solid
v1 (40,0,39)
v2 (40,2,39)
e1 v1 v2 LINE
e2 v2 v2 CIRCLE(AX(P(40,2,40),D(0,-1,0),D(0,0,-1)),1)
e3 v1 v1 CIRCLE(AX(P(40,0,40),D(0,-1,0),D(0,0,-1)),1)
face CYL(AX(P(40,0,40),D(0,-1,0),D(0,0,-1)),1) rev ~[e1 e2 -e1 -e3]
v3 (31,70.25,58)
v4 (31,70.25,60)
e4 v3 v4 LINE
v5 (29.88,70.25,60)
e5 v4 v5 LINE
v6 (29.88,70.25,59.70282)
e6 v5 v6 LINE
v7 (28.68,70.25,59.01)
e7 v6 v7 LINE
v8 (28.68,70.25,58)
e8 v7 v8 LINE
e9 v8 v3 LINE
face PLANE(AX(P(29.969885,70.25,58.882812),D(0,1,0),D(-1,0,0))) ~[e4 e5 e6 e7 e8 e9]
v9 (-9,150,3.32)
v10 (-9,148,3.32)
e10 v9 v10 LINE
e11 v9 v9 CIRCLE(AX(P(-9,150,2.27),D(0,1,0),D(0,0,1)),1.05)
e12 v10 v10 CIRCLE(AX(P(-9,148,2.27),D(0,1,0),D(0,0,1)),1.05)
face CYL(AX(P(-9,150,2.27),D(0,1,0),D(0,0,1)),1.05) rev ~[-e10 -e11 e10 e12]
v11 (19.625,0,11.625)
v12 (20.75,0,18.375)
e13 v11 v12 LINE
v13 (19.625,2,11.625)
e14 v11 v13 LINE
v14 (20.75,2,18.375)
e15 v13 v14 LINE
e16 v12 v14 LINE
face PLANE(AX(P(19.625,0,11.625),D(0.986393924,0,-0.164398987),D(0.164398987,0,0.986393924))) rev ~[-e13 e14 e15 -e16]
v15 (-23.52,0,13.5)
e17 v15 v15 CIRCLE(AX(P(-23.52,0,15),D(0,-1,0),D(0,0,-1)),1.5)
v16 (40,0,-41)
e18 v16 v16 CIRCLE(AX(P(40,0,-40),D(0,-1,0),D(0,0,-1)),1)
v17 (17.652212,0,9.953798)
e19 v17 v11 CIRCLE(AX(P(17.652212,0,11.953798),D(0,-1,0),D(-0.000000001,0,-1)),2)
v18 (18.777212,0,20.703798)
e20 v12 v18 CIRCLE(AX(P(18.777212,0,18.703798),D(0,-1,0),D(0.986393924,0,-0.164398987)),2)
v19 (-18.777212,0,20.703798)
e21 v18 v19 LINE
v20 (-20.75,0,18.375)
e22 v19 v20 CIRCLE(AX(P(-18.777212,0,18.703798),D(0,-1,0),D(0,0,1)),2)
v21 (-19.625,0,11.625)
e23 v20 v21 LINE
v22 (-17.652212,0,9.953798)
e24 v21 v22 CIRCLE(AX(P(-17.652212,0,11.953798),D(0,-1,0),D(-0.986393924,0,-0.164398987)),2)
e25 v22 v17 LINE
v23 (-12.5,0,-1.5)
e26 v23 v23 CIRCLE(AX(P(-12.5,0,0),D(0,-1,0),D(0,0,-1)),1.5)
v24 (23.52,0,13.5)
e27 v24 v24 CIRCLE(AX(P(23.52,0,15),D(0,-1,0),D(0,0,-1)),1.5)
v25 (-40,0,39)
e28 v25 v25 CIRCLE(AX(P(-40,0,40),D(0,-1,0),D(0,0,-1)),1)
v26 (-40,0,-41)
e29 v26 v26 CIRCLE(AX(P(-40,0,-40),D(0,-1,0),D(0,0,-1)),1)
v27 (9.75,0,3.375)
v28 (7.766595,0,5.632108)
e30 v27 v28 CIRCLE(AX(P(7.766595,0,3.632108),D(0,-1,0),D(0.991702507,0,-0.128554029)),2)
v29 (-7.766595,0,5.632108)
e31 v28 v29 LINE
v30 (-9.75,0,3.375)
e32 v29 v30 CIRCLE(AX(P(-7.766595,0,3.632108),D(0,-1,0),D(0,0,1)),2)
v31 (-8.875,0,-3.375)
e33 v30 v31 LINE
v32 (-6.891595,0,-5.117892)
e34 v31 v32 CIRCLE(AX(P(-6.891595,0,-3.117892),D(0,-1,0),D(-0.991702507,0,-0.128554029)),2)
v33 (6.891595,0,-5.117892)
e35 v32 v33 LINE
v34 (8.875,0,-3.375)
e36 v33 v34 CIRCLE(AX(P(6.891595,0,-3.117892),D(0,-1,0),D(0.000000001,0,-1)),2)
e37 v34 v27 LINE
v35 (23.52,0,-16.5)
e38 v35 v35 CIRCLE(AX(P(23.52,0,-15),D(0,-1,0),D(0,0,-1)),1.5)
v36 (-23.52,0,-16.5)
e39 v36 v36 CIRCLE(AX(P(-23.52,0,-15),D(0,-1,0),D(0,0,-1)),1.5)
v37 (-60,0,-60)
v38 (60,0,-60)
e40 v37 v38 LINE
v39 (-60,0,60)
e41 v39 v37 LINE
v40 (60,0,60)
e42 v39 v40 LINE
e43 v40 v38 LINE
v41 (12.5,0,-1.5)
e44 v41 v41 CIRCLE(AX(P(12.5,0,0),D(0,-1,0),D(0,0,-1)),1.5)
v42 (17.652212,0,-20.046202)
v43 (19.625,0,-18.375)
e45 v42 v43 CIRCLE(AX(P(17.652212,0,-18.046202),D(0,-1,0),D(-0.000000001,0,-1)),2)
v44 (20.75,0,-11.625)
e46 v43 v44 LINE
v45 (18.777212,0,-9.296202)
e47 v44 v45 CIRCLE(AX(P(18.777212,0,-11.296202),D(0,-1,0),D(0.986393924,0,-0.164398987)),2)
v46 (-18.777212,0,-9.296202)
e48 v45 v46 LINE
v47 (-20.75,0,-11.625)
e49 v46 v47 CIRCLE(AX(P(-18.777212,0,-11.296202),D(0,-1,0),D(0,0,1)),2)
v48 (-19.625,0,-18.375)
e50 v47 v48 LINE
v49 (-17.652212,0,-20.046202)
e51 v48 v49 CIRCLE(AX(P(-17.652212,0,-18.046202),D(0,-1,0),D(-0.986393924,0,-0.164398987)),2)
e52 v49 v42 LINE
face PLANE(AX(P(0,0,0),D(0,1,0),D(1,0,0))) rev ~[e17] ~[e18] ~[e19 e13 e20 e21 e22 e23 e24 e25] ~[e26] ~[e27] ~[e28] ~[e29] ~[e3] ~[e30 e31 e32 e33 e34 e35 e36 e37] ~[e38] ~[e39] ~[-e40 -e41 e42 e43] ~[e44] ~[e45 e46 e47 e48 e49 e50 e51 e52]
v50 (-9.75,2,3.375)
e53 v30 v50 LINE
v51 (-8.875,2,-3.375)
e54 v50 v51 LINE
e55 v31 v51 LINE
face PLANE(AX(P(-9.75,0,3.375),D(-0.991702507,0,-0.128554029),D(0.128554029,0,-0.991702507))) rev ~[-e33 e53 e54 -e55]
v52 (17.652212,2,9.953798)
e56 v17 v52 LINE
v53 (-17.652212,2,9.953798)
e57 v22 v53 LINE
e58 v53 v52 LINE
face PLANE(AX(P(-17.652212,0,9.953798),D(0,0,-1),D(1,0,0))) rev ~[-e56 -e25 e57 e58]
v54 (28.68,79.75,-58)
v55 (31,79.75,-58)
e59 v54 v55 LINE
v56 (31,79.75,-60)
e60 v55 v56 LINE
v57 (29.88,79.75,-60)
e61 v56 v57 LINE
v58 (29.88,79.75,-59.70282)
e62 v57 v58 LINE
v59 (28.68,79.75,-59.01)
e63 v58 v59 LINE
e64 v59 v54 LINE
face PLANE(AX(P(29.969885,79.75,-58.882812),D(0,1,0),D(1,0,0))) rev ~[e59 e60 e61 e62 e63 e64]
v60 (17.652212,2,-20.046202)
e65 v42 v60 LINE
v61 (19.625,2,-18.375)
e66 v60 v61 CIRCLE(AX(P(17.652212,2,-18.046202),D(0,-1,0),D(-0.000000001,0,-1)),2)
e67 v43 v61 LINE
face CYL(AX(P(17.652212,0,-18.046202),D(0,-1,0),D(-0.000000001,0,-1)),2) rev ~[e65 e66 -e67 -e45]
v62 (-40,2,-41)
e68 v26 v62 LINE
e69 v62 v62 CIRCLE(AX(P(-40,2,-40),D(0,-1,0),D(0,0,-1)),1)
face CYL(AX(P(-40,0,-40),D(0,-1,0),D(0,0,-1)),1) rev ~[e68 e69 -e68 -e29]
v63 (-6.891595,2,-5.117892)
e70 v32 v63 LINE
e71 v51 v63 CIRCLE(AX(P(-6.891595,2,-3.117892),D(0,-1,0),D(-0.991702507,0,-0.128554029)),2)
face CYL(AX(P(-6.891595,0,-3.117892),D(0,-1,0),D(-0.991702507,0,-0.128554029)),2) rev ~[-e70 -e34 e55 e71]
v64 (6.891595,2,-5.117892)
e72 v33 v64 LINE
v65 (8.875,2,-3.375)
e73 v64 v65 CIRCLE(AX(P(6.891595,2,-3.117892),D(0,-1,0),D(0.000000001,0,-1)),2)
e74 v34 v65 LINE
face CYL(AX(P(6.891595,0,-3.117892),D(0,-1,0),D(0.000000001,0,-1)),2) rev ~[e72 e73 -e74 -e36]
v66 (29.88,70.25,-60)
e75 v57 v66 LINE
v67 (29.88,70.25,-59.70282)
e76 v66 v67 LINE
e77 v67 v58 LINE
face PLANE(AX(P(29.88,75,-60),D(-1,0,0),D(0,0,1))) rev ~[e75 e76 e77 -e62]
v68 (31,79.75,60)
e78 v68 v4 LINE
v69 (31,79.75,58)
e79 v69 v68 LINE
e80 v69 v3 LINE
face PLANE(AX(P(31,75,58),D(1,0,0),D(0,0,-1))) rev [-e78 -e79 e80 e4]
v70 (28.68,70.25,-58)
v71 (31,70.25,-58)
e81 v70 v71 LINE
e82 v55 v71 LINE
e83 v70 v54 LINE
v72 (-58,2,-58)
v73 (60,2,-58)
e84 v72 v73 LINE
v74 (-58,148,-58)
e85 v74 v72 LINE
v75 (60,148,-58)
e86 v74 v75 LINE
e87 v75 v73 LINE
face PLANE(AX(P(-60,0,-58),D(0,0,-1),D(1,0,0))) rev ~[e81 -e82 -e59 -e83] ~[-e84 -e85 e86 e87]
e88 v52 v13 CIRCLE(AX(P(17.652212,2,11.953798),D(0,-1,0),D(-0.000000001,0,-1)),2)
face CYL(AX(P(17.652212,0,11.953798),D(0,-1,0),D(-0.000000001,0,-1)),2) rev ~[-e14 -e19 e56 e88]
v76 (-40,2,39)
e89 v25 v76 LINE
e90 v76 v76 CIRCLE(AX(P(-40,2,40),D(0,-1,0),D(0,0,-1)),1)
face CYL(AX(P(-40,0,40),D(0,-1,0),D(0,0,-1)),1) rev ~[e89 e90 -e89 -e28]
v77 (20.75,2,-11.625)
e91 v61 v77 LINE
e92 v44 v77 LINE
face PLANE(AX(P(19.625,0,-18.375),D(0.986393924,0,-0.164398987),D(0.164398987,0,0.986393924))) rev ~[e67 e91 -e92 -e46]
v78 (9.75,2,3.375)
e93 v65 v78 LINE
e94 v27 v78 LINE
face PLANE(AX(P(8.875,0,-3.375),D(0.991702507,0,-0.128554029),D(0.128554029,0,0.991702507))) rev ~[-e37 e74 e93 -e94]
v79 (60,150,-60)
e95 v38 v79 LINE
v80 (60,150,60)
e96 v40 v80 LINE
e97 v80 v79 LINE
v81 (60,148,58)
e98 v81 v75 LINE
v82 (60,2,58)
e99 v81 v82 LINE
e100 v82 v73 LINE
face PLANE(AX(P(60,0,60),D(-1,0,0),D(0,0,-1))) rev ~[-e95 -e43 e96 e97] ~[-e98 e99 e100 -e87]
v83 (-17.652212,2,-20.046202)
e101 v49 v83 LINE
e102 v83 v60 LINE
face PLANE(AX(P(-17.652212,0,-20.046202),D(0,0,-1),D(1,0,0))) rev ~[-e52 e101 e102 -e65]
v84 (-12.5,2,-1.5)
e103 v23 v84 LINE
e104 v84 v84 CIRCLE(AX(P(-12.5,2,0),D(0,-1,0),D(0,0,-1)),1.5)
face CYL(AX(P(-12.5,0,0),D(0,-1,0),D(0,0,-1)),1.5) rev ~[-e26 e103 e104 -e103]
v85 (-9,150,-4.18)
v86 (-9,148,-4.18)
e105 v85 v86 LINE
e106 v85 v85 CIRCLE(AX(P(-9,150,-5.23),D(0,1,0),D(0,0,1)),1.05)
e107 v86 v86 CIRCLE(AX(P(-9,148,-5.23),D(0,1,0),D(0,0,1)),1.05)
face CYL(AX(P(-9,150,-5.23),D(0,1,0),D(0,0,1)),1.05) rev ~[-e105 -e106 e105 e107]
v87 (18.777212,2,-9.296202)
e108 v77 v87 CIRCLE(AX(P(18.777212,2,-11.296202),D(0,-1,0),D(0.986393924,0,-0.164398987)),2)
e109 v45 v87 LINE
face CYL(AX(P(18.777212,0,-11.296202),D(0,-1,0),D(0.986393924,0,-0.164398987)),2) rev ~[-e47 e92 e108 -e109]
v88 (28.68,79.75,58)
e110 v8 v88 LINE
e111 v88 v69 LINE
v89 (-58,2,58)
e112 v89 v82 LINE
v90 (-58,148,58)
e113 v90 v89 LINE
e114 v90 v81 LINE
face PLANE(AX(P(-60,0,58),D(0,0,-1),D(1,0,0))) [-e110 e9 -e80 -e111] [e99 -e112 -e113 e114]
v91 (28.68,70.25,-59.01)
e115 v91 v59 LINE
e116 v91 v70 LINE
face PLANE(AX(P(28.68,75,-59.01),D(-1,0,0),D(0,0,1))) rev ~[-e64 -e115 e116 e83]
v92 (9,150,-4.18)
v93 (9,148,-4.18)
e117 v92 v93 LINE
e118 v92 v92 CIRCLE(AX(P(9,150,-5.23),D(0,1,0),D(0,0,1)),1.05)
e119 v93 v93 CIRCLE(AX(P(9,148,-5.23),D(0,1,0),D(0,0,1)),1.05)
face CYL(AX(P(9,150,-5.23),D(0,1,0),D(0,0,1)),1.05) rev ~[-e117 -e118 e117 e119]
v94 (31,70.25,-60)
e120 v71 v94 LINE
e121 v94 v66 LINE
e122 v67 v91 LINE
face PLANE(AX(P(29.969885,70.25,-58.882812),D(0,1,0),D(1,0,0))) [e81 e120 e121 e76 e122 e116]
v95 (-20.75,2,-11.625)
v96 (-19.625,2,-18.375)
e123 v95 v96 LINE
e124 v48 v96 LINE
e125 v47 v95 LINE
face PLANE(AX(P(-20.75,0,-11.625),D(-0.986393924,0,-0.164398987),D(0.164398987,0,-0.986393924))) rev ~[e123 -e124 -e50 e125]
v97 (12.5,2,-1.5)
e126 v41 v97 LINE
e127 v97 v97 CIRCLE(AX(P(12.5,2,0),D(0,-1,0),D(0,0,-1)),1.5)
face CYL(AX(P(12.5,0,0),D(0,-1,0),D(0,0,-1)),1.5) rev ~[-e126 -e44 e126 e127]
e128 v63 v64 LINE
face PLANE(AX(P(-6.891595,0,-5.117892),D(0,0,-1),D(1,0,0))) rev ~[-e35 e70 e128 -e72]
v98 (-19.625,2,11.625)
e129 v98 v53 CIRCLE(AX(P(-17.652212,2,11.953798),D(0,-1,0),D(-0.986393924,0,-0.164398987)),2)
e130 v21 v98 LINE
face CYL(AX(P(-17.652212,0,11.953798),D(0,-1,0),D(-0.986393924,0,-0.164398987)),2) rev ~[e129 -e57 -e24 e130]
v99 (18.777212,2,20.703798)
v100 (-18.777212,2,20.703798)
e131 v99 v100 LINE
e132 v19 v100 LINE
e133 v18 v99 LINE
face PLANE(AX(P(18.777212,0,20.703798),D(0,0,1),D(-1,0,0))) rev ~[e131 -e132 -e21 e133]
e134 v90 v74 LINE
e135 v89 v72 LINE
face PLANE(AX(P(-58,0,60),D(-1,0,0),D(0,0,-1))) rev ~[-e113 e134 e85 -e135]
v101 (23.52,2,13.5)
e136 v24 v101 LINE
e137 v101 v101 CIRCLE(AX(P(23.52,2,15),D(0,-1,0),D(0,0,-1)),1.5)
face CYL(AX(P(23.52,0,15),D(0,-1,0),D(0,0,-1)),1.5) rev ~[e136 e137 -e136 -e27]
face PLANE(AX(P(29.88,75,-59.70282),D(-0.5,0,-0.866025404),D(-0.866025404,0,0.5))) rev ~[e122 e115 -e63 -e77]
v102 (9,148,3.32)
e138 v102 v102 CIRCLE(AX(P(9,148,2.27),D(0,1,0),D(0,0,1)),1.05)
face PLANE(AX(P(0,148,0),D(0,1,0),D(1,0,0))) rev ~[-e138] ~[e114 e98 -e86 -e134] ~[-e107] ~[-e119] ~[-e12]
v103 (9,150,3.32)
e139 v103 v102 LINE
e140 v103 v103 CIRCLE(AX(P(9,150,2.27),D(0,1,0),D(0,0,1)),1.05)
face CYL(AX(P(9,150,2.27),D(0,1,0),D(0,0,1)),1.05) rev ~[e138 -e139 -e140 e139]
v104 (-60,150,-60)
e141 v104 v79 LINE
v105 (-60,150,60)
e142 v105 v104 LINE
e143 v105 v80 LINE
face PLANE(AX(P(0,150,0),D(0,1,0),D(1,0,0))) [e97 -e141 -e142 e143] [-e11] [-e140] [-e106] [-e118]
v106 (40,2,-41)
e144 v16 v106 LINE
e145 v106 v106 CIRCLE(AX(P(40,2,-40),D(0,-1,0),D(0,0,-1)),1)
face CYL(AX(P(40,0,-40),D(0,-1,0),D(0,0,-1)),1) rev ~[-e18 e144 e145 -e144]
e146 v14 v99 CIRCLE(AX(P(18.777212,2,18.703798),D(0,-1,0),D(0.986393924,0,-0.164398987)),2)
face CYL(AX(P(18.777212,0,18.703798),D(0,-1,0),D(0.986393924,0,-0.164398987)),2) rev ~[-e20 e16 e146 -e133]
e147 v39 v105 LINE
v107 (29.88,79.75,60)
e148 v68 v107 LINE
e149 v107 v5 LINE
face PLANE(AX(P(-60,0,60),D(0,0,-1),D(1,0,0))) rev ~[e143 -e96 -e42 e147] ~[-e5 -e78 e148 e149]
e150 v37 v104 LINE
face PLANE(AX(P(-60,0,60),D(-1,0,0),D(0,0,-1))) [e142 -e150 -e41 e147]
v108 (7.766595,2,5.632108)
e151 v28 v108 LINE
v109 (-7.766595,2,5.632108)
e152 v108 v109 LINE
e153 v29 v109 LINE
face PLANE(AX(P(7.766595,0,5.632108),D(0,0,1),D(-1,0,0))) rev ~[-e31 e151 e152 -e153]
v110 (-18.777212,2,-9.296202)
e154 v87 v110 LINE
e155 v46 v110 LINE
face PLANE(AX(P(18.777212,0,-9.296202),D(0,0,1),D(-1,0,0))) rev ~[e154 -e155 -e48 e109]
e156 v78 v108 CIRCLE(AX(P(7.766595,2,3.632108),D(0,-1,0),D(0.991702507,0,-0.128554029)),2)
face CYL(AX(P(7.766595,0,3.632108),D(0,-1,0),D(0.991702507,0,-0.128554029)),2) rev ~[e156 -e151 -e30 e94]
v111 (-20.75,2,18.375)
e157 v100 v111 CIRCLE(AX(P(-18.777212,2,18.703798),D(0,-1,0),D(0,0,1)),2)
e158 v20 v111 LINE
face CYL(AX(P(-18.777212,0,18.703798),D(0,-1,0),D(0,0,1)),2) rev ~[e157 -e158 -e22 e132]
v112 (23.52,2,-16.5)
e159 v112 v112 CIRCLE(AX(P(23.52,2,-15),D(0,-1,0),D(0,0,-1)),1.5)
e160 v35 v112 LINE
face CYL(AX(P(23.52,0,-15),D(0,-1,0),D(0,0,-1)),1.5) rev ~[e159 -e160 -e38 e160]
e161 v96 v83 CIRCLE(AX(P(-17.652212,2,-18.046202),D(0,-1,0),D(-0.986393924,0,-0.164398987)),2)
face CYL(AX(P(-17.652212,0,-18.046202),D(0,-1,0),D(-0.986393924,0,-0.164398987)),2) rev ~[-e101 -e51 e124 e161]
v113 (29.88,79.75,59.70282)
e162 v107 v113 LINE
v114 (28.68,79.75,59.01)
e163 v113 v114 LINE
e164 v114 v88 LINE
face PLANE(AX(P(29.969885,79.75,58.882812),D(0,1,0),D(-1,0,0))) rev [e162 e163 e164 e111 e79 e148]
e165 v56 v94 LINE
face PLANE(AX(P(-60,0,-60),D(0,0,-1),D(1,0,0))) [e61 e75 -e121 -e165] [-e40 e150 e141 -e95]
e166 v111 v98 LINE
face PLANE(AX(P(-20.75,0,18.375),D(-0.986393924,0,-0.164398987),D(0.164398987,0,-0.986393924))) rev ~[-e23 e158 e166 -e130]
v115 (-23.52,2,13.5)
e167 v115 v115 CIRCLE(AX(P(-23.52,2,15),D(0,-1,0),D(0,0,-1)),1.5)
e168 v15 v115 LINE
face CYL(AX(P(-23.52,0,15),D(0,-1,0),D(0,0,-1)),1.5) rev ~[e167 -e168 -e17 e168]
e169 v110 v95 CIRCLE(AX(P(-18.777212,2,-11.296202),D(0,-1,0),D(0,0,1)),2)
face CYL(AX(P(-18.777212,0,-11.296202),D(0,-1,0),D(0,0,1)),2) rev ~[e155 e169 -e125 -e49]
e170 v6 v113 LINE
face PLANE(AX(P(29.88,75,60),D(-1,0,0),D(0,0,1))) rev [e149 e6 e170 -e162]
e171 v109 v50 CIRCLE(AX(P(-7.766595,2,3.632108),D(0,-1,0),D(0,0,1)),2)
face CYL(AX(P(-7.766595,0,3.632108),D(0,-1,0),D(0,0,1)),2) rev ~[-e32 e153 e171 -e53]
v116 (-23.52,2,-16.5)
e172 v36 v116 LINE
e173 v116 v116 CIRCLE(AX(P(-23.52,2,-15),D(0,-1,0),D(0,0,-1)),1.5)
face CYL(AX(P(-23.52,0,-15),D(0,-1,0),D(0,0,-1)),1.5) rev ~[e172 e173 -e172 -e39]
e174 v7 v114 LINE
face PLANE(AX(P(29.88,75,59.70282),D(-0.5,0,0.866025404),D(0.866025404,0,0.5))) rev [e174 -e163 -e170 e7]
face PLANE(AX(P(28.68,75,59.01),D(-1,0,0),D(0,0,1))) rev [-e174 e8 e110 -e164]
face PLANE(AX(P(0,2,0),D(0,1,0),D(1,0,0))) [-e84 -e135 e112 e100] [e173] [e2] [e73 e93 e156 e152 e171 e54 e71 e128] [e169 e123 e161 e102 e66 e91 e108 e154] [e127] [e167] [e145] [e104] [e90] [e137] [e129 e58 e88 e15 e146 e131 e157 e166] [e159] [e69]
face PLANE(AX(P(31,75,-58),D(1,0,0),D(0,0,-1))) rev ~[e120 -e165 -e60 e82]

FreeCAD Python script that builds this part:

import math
import FreeCAD as App
import Part
import Sketcher
from FreeCAD import Vector
Q = App.Units.Quantity


def faces_at(feature, points):
    """Names of the faces that lie closest to the given points."""
    faces = feature.Shape.Faces
    near = lambda p: min(range(len(faces)), key=lambda i: faces[i].distToShape(Part.Vertex(*p))[0])
    return sorted({f"Face{near(p) + 1}" for p in points})


def add_polygon(sketch, points):
    """Adds a closed chain of lines whose ends are joined by coincident constraints."""
    first, n = sketch.GeometryCount, len(points)
    for a, b in zip(points, points[1:] + points[:1]):
        sketch.addGeometry(Part.LineSegment(App.Vector(*a, 0), App.Vector(*b, 0)), False)
    for i in range(n):
        sketch.addConstraint(Sketcher.Constraint("Coincident", first + i, 2, first + (i + 1) % n, 1))

doc = App.newDocument("Part")
body = doc.addObject("PartDesign::Body", "Body")

sketch1 = body.newObject("Sketcher::SketchObject", "Sketch")
sketch1.AttachmentSupport = (doc.getObject("XZ_Plane"), [""])
sketch1.MapMode = "FlatFace"
add_polygon(sketch1, [(-60, -60), (-60, 60), (60, 60), (60, -60)])
sketch1.addConstraint([
    Sketcher.Constraint("Vertical", 0),
    Sketcher.Constraint("Horizontal", 1),
    Sketcher.Constraint("Vertical", 2),
    Sketcher.Constraint("Horizontal", 3),
    Sketcher.Constraint("Symmetric", 0, 2, 2, 2, -1, 1),
    Sketcher.Constraint("Equal", 3, 0),
    Sketcher.Constraint("DistanceX", 1, 1, 1, 2, 120.0),
])
pad1 = body.newObject("PartDesign::Pad", "Pad")
pad1.Profile = sketch1
pad1.Length = 150
pad1.Reversed = True
doc.recompute()

thickness = body.newObject("PartDesign::Thickness", "Thickness")
thickness.Base = (pad1, faces_at(pad1, [(60, 75, 0)]))
thickness.Value = 2
thickness.Reversed = True
thickness.Join = "Intersection"

sketch2 = body.newObject("Sketcher::SketchObject", "Sketch001")
sketch2.AttachmentSupport = (doc.getObject("XZ_Plane"), [""])
sketch2.MapMode = "FlatFace"
sketch2.addGeometry(Part.Circle(Vector(-40, 40, 0), Vector(0, 0, 1), 1), False)
sketch2.addConstraint([
    Sketcher.Constraint("Diameter", 0, 2.0),
    Sketcher.Constraint("DistanceX", 0, 3, -1, 1, 40.0),
    Sketcher.Constraint("DistanceY", -1, 1, 0, 3, 40.0),
])
pocket1 = body.newObject("PartDesign::Pocket", "Pocket")
pocket1.Profile = sketch2
pocket1.Type = "UpToFirst"

sketch3 = body.newObject("Sketcher::SketchObject", "Sketch002")
sketch3.AttachmentSupport = (doc.getObject("XZ_Plane"), [""])
sketch3.MapMode = "FlatFace"
sketch3.addGeometry(Part.Circle(Vector(40, 40, 0), Vector(0, 0, 1), 1), False)
sketch3.addConstraint([
    Sketcher.Constraint("Diameter", 0, 2.0),
    Sketcher.Constraint("DistanceX", -1, 1, 0, 3, 40.0),
    Sketcher.Constraint("DistanceY", -1, 1, 0, 3, 40.0),
])
pocket2 = body.newObject("PartDesign::Pocket", "Pocket001")
pocket2.Profile = sketch3
pocket2.Type = "UpToFirst"

sketch4 = body.newObject("Sketcher::SketchObject", "Sketch003")
sketch4.AttachmentSupport = (doc.getObject("XZ_Plane"), [""])
sketch4.MapMode = "FlatFace"
sketch4.addGeometry(Part.Circle(Vector(40, -40, 0), Vector(0, 0, 1), 1), False)
sketch4.addConstraint([
    Sketcher.Constraint("Diameter", 0, 2.0),
    Sketcher.Constraint("DistanceX", -1, 1, 0, 3, 40.0),
    Sketcher.Constraint("DistanceY", 0, 3, -1, 1, 40.0),
])
pocket3 = body.newObject("PartDesign::Pocket", "Pocket002")
pocket3.Profile = sketch4
pocket3.Type = "UpToFirst"

sketch5 = body.newObject("Sketcher::SketchObject", "Sketch004")
sketch5.AttachmentSupport = (doc.getObject("XZ_Plane"), [""])
sketch5.MapMode = "FlatFace"
sketch5.addGeometry(Part.Circle(Vector(-40, -40, 0), Vector(0, 0, 1), 1), False)
sketch5.addConstraint([
    Sketcher.Constraint("Diameter", 0, 2.0),
    Sketcher.Constraint("DistanceX", 0, 3, -1, 1, 40.0),
    Sketcher.Constraint("DistanceY", 0, 3, -1, 1, 40.0),
])
pocket4 = body.newObject("PartDesign::Pocket", "Pocket003")
pocket4.Profile = sketch5
pocket4.Type = "UpToFirst"

sketch6 = body.newObject("Sketcher::SketchObject", "Sketch005")
sketch6.AttachmentSupport = (doc.getObject("XZ_Plane"), [""])
sketch6.MapMode = "FlatFace"
sketch6.AttachmentOffset = App.Placement(Vector(0, 0, -150), App.Rotation())
sketch6.addGeometry(Part.Circle(Vector(-9, -5.2, 0), Vector(0, 0, 1), 1.1), False)
sketch6.addConstraint([
    Sketcher.Constraint("Diameter", 0, 2.1),
    Sketcher.Constraint("DistanceX", 0, 3, -1, 1, 9.0),
    Sketcher.Constraint("DistanceY", 0, 3, -1, 1, 5.23),
])
pocket5 = body.newObject("PartDesign::Pocket", "Pocket004")
pocket5.Profile = sketch6
pocket5.Type = "UpToFirst"
pocket5.Reversed = True

sketch7 = body.newObject("Sketcher::SketchObject", "Sketch006")
sketch7.AttachmentSupport = (doc.getObject("XZ_Plane"), [""])
sketch7.MapMode = "FlatFace"
sketch7.AttachmentOffset = App.Placement(Vector(0, 0, -150), App.Rotation())
sketch7.addGeometry(Part.Circle(Vector(9, -5.2, 0), Vector(0, 0, 1), 1.1), False)
sketch7.addConstraint([
    Sketcher.Constraint("Diameter", 0, 2.1),
    Sketcher.Constraint("DistanceX", -1, 1, 0, 3, 9.0),
    Sketcher.Constraint("DistanceY", 0, 3, -1, 1, 5.23),
])
pocket6 = body.newObject("PartDesign::Pocket", "Pocket005")
pocket6.Profile = sketch7
pocket6.Type = "UpToFirst"
pocket6.Reversed = True

sketch8 = body.newObject("Sketcher::SketchObject", "Sketch007")
sketch8.AttachmentSupport = (doc.getObject("XZ_Plane"), [""])
sketch8.MapMode = "FlatFace"
sketch8.AttachmentOffset = App.Placement(Vector(0, 0, -150), App.Rotation())
sketch8.addGeometry(Part.Circle(Vector(9, 2.3, 0), Vector(0, 0, 1), 1.1), False)
sketch8.addConstraint([
    Sketcher.Constraint("Diameter", 0, 2.1),
    Sketcher.Constraint("DistanceX", -1, 1, 0, 3, 9.0),
    Sketcher.Constraint("DistanceY", -1, 1, 0, 3, 2.27),
])
pocket7 = body.newObject("PartDesign::Pocket", "Pocket006")
pocket7.Profile = sketch8
pocket7.Type = "UpToFirst"
pocket7.Reversed = True

sketch9 = body.newObject("Sketcher::SketchObject", "Sketch008")
sketch9.AttachmentSupport = (doc.getObject("XZ_Plane"), [""])
sketch9.MapMode = "FlatFace"
sketch9.AttachmentOffset = App.Placement(Vector(0, 0, -150), App.Rotation())
sketch9.addGeometry(Part.Circle(Vector(-9, 2.3, 0), Vector(0, 0, 1), 1.1), False)
sketch9.addConstraint([
    Sketcher.Constraint("Diameter", 0, 2.1),
    Sketcher.Constraint("DistanceX", 0, 3, -1, 1, 9.0),
    Sketcher.Constraint("DistanceY", -1, 1, 0, 3, 2.27),
])
pocket8 = body.newObject("PartDesign::Pocket", "Pocket007")
pocket8.Profile = sketch9
pocket8.Type = "UpToFirst"
pocket8.Reversed = True

sketch10 = body.newObject("Sketcher::SketchObject", "Sketch009")
sketch10.AttachmentSupport = (doc.getObject("XZ_Plane"), [""])
sketch10.MapMode = "FlatFace"
sketch10.addGeometry(Part.Circle(Vector(-12.5, 0, 0), Vector(0, 0, 1), 1.5), False)
sketch10.addConstraint([
    Sketcher.Constraint("PointOnObject", 0, 3, -1),
    Sketcher.Constraint("Diameter", 0, 3.0),
    Sketcher.Constraint("DistanceX", 0, 3, -1, 1, 12.5),
])
pocket9 = body.newObject("PartDesign::Pocket", "Pocket008")
pocket9.Profile = sketch10
pocket9.Type = "UpToFirst"

sketch11 = body.newObject("Sketcher::SketchObject", "Sketch010")
sketch11.AttachmentSupport = (doc.getObject("XZ_Plane"), [""])
sketch11.MapMode = "FlatFace"
sketch11.addGeometry(Part.Circle(Vector(12.5, 0, 0), Vector(0, 0, 1), 1.5), False)
sketch11.addConstraint([
    Sketcher.Constraint("PointOnObject", 0, 3, -1),
    Sketcher.Constraint("Diameter", 0, 3.0),
    Sketcher.Constraint("DistanceX", -1, 1, 0, 3, 12.5),
])
pocket10 = body.newObject("PartDesign::Pocket", "Pocket009")
pocket10.Profile = sketch11
pocket10.Type = "UpToFirst"

sketch12 = body.newObject("Sketcher::SketchObject", "Sketch011")
sketch12.AttachmentSupport = (doc.getObject("XZ_Plane"), [""])
sketch12.MapMode = "FlatFace"
sketch12.addGeometry(Part.Circle(Vector(-23.5, -15, 0), Vector(0, 0, 1), 1.5), False)
sketch12.addConstraint([
    Sketcher.Constraint("Diameter", 0, 3.0),
    Sketcher.Constraint("DistanceY", 0, 3, -1, 1, 15.0),
    Sketcher.Constraint("DistanceX", 0, 3, -1, 1, 23.52),
])
pocket11 = body.newObject("PartDesign::Pocket", "Pocket010")
pocket11.Profile = sketch12
pocket11.Type = "UpToFirst"

sketch13 = body.newObject("Sketcher::SketchObject", "Sketch012")
sketch13.AttachmentSupport = (doc.getObject("XZ_Plane"), [""])
sketch13.MapMode = "FlatFace"
sketch13.addGeometry(Part.Circle(Vector(23.5, -15, 0), Vector(0, 0, 1), 1.5), False)
sketch13.addConstraint([
    Sketcher.Constraint("Diameter", 0, 3.0),
    Sketcher.Constraint("DistanceY", 0, 3, -1, 1, 15.0),
    Sketcher.Constraint("DistanceX", -1, 1, 0, 3, 23.52),
])
pocket12 = body.newObject("PartDesign::Pocket", "Pocket011")
pocket12.Profile = sketch13
pocket12.Type = "UpToFirst"

sketch14 = body.newObject("Sketcher::SketchObject", "Sketch013")
sketch14.AttachmentSupport = (doc.getObject("XZ_Plane"), [""])
sketch14.MapMode = "FlatFace"
sketch14.addGeometry(Part.Circle(Vector(-23.5, 15, 0), Vector(0, 0, 1), 1.5), False)
sketch14.addConstraint([
    Sketcher.Constraint("Diameter", 0, 3.0),
    Sketcher.Constraint("DistanceY", -1, 1, 0, 3, 15.0),
    Sketcher.Constraint("DistanceX", 0, 3, -1, 1, 23.52),
])
pocket13 = body.newObject("PartDesign::Pocket", "Pocket012")
pocket13.Profile = sketch14
pocket13.Type = "UpToFirst"

sketch15 = body.newObject("Sketcher::SketchObject", "Sketch014")
sketch15.AttachmentSupport = (doc.getObject("XZ_Plane"), [""])
sketch15.MapMode = "FlatFace"
sketch15.addGeometry(Part.Circle(Vector(23.5, 15, 0), Vector(0, 0, 1), 1.5), False)
sketch15.addConstraint([
    Sketcher.Constraint("Diameter", 0, 3.0),
    Sketcher.Constraint("DistanceY", -1, 1, 0, 3, 15.0),
    Sketcher.Constraint("DistanceX", -1, 1, 0, 3, 23.52),
])
pocket14 = body.newObject("PartDesign::Pocket", "Pocket013")
pocket14.Profile = sketch15
pocket14.Type = "UpToFirst"

sketch16 = body.newObject("Sketcher::SketchObject", "Sketch015")
sketch16.AttachmentSupport = (doc.getObject("XZ_Plane"), [""])
sketch16.MapMode = "FlatFace"
sketch16.addGeometry([
    Part.LineSegment(Vector(-6.9, -5.1, 0), Vector(6.9, -5.1, 0)),
    Part.ArcOfCircle(Part.Circle(Vector(6.9, -3.1, 0), Vector(0, 0, 1), 2), math.radians(-90), math.radians(-7)),
    Part.LineSegment(Vector(8.9, -3.4, 0), Vector(9.8, 3.4, 0)),
    Part.ArcOfCircle(Part.Circle(Vector(7.8, 3.6, 0), Vector(0, 0, 1), 2), math.radians(-7), math.radians(90)),
    Part.LineSegment(Vector(7.8, 5.6, 0), Vector(-7.8, 5.6, 0)),
    Part.ArcOfCircle(Part.Circle(Vector(-7.8, 3.6, 0), Vector(0, 0, 1), 2), math.radians(90), math.radians(187)),
    Part.LineSegment(Vector(-9.8, 3.4, 0), Vector(-8.9, -3.4, 0)),
    Part.ArcOfCircle(Part.Circle(Vector(-6.9, -3.1, 0), Vector(0, 0, 1), 2), math.radians(-173), math.radians(-90)),
], False)
sketch16.addConstraint([
    Sketcher.Constraint("Tangent", 0, 2, 1, 1),
    Sketcher.Constraint("Tangent", 1, 2, 2, 1),
    Sketcher.Constraint("Tangent", 2, 2, 3, 1),
    Sketcher.Constraint("Tangent", 3, 2, 4, 1),
    Sketcher.Constraint("Tangent", 4, 2, 5, 1),
    Sketcher.Constraint("Tangent", 5, 2, 6, 1),
    Sketcher.Constraint("Tangent", 6, 2, 7, 1),
    Sketcher.Constraint("Tangent", 7, 2, 0, 1),
    Sketcher.Constraint("Horizontal", 0),
    Sketcher.Constraint("Horizontal", 4),
    Sketcher.Constraint("Equal", 1, 3),
    Sketcher.Constraint("Equal", 3, 5),
    Sketcher.Constraint("Equal", 5, 7),
    Sketcher.Constraint("Symmetric", 2, 2, 5, 2, -2),
    Sketcher.Constraint("Radius", 1, 2.0),
    Sketcher.Constraint("DistanceX", -1, 1, 2, 2, 9.75),
    Sketcher.Constraint("DistanceY", 1, 3, 3, 3, 6.75),
    Sketcher.Constraint("DistanceX", -1, 1, 1, 2, 8.875),
    Sketcher.Constraint("DistanceY", 1, 2, -1, 1, 3.375),
])
pocket15 = body.newObject("PartDesign::Pocket", "Pocket014")
pocket15.Profile = sketch16
pocket15.Type = "UpToFirst"

sketch17 = body.newObject("Sketcher::SketchObject", "Sketch016")
sketch17.AttachmentSupport = (doc.getObject("XZ_Plane"), [""])
sketch17.MapMode = "FlatFace"
sketch17.addGeometry([
    Part.LineSegment(Vector(-17.7, -20, 0), Vector(17.7, -20, 0)),
    Part.ArcOfCircle(Part.Circle(Vector(17.7, -18, 0), Vector(0, 0, 1), 2), math.radians(-90), math.radians(-9)),
    Part.LineSegment(Vector(19.6, -18.4, 0), Vector(20.8, -11.6, 0)),
    Part.ArcOfCircle(Part.Circle(Vector(18.8, -11.3, 0), Vector(0, 0, 1), 2), math.radians(-9), math.radians(90)),
    Part.LineSegment(Vector(18.8, -9.3, 0), Vector(-18.8, -9.3, 0)),
    Part.ArcOfCircle(Part.Circle(Vector(-18.8, -11.3, 0), Vector(0, 0, 1), 2), math.radians(90), math.radians(189)),
    Part.LineSegment(Vector(-20.8, -11.6, 0), Vector(-19.6, -18.4, 0)),
    Part.ArcOfCircle(Part.Circle(Vector(-17.7, -18, 0), Vector(0, 0, 1), 2), math.radians(-171), math.radians(-90)),
], False)
sketch17.addConstraint([
    Sketcher.Constraint("Tangent", 0, 2, 1, 1),
    Sketcher.Constraint("Tangent", 1, 2, 2, 1),
    Sketcher.Constraint("Tangent", 2, 2, 3, 1),
    Sketcher.Constraint("Tangent", 3, 2, 4, 1),
    Sketcher.Constraint("Tangent", 4, 2, 5, 1),
    Sketcher.Constraint("Tangent", 5, 2, 6, 1),
    Sketcher.Constraint("Tangent", 6, 2, 7, 1),
    Sketcher.Constraint("Tangent", 7, 2, 0, 1),
    Sketcher.Constraint("Horizontal", 0),
    Sketcher.Constraint("Horizontal", 4),
    Sketcher.Constraint("Equal", 1, 3),
    Sketcher.Constraint("Equal", 3, 5),
    Sketcher.Constraint("Equal", 5, 7),
    Sketcher.Constraint("Symmetric", 2, 2, 5, 2, -2),
    Sketcher.Constraint("Radius", 1, 2.0),
    Sketcher.Constraint("DistanceX", -1, 1, 2, 2, 20.75),
    Sketcher.Constraint("DistanceY", 1, 3, 3, 3, 6.75),
    Sketcher.Constraint("DistanceX", -1, 1, 1, 2, 19.625),
    Sketcher.Constraint("DistanceY", 1, 2, -1, 1, 18.375),
])
pocket16 = body.newObject("PartDesign::Pocket", "Pocket015")
pocket16.Profile = sketch17
pocket16.Type = "UpToFirst"

sketch18 = body.newObject("Sketcher::SketchObject", "Sketch017")
sketch18.AttachmentSupport = (doc.getObject("XZ_Plane"), [""])
sketch18.MapMode = "FlatFace"
sketch18.addGeometry([
    Part.LineSegment(Vector(-17.7, 10, 0), Vector(17.7, 10, 0)),
    Part.ArcOfCircle(Part.Circle(Vector(17.7, 12, 0), Vector(0, 0, 1), 2), math.radians(-90), math.radians(-9)),
    Part.LineSegment(Vector(19.6, 11.6, 0), Vector(20.8, 18.4, 0)),
    Part.ArcOfCircle(Part.Circle(Vector(18.8, 18.7, 0), Vector(0, 0, 1), 2), math.radians(-9), math.radians(90)),
    Part.LineSegment(Vector(18.8, 20.7, 0), Vector(-18.8, 20.7, 0)),
    Part.ArcOfCircle(Part.Circle(Vector(-18.8, 18.7, 0), Vector(0, 0, 1), 2), math.radians(90), math.radians(189)),
    Part.LineSegment(Vector(-20.8, 18.4, 0), Vector(-19.6, 11.6, 0)),
    Part.ArcOfCircle(Part.Circle(Vector(-17.7, 12, 0), Vector(0, 0, 1), 2), math.radians(-171), math.radians(-90)),
], False)
sketch18.addConstraint([
    Sketcher.Constraint("Tangent", 0, 2, 1, 1),
    Sketcher.Constraint("Tangent", 1, 2, 2, 1),
    Sketcher.Constraint("Tangent", 2, 2, 3, 1),
    Sketcher.Constraint("Tangent", 3, 2, 4, 1),
    Sketcher.Constraint("Tangent", 4, 2, 5, 1),
    Sketcher.Constraint("Tangent", 5, 2, 6, 1),
    Sketcher.Constraint("Tangent", 6, 2, 7, 1),
    Sketcher.Constraint("Tangent", 7, 2, 0, 1),
    Sketcher.Constraint("Horizontal", 0),
    Sketcher.Constraint("Horizontal", 4),
    Sketcher.Constraint("Equal", 1, 3),
    Sketcher.Constraint("Equal", 3, 5),
    Sketcher.Constraint("Equal", 5, 7),
    Sketcher.Constraint("Symmetric", 2, 2, 5, 2, -2),
    Sketcher.Constraint("Radius", 1, 2.0),
    Sketcher.Constraint("DistanceX", -1, 1, 2, 2, 20.75),
    Sketcher.Constraint("DistanceY", 1, 3, 3, 3, 6.75),
    Sketcher.Constraint("DistanceX", -1, 1, 1, 2, 19.625),
    Sketcher.Constraint("DistanceY", -1, 1, 1, 2, 11.625),
])
pocket17 = body.newObject("PartDesign::Pocket", "Pocket016")
pocket17.Profile = sketch18
pocket17.Type = "UpToFirst"

sketch19 = body.newObject("Sketcher::SketchObject", "Sketch018")
sketch19.AttachmentSupport = (doc.getObject("XZ_Plane"), [""])
sketch19.MapMode = "FlatFace"
sketch19.AttachmentOffset = App.Placement(Vector(0, 0, -75), App.Rotation())
add_polygon(sketch19, [(29.88, -60), (29.88, -59.7), (28.68, -59.01), (28.68, -58), (31, -58), (31, -60)])
sketch19.addConstraint([
    Sketcher.Constraint("Vertical", 0),
    Sketcher.Constraint("Vertical", 2),
    Sketcher.Constraint("Horizontal", 3),
    Sketcher.Constraint("Vertical", 4),
    Sketcher.Constraint("Horizontal", 5),
    Sketcher.Constraint("DistanceY", 4, 2, 4, 1, 2.0),
    Sketcher.Constraint("Angle", 1, Q("150 deg")),
    Sketcher.Constraint("DistanceY", 2, 2, -1, 1, 58.0),
    Sketcher.Constraint("DistanceX", -1, 1, 3, 2, 31.0),
    Sketcher.Constraint("DistanceX", 3, 1, 3, 2, 2.32),
    Sketcher.Constraint("DistanceX", 5, 2, 5, 1, 1.12),
    Sketcher.Constraint("DistanceY", 2, 1, 2, 2, 1.01),
])
pocket18 = body.newObject("PartDesign::Pocket", "Pocket017")
pocket18.Profile = sketch19
pocket18.Length = 9.5
pocket18.Midplane = True
doc.recompute()

mirrored = body.newObject("PartDesign::Mirrored", "Mirrored")
mirrored.Originals = [pocket18]
mirrored.MirrorPlane = (doc.getObject("XY_Plane"), [""])
body.Tip = mirrored

doc.recompute()
